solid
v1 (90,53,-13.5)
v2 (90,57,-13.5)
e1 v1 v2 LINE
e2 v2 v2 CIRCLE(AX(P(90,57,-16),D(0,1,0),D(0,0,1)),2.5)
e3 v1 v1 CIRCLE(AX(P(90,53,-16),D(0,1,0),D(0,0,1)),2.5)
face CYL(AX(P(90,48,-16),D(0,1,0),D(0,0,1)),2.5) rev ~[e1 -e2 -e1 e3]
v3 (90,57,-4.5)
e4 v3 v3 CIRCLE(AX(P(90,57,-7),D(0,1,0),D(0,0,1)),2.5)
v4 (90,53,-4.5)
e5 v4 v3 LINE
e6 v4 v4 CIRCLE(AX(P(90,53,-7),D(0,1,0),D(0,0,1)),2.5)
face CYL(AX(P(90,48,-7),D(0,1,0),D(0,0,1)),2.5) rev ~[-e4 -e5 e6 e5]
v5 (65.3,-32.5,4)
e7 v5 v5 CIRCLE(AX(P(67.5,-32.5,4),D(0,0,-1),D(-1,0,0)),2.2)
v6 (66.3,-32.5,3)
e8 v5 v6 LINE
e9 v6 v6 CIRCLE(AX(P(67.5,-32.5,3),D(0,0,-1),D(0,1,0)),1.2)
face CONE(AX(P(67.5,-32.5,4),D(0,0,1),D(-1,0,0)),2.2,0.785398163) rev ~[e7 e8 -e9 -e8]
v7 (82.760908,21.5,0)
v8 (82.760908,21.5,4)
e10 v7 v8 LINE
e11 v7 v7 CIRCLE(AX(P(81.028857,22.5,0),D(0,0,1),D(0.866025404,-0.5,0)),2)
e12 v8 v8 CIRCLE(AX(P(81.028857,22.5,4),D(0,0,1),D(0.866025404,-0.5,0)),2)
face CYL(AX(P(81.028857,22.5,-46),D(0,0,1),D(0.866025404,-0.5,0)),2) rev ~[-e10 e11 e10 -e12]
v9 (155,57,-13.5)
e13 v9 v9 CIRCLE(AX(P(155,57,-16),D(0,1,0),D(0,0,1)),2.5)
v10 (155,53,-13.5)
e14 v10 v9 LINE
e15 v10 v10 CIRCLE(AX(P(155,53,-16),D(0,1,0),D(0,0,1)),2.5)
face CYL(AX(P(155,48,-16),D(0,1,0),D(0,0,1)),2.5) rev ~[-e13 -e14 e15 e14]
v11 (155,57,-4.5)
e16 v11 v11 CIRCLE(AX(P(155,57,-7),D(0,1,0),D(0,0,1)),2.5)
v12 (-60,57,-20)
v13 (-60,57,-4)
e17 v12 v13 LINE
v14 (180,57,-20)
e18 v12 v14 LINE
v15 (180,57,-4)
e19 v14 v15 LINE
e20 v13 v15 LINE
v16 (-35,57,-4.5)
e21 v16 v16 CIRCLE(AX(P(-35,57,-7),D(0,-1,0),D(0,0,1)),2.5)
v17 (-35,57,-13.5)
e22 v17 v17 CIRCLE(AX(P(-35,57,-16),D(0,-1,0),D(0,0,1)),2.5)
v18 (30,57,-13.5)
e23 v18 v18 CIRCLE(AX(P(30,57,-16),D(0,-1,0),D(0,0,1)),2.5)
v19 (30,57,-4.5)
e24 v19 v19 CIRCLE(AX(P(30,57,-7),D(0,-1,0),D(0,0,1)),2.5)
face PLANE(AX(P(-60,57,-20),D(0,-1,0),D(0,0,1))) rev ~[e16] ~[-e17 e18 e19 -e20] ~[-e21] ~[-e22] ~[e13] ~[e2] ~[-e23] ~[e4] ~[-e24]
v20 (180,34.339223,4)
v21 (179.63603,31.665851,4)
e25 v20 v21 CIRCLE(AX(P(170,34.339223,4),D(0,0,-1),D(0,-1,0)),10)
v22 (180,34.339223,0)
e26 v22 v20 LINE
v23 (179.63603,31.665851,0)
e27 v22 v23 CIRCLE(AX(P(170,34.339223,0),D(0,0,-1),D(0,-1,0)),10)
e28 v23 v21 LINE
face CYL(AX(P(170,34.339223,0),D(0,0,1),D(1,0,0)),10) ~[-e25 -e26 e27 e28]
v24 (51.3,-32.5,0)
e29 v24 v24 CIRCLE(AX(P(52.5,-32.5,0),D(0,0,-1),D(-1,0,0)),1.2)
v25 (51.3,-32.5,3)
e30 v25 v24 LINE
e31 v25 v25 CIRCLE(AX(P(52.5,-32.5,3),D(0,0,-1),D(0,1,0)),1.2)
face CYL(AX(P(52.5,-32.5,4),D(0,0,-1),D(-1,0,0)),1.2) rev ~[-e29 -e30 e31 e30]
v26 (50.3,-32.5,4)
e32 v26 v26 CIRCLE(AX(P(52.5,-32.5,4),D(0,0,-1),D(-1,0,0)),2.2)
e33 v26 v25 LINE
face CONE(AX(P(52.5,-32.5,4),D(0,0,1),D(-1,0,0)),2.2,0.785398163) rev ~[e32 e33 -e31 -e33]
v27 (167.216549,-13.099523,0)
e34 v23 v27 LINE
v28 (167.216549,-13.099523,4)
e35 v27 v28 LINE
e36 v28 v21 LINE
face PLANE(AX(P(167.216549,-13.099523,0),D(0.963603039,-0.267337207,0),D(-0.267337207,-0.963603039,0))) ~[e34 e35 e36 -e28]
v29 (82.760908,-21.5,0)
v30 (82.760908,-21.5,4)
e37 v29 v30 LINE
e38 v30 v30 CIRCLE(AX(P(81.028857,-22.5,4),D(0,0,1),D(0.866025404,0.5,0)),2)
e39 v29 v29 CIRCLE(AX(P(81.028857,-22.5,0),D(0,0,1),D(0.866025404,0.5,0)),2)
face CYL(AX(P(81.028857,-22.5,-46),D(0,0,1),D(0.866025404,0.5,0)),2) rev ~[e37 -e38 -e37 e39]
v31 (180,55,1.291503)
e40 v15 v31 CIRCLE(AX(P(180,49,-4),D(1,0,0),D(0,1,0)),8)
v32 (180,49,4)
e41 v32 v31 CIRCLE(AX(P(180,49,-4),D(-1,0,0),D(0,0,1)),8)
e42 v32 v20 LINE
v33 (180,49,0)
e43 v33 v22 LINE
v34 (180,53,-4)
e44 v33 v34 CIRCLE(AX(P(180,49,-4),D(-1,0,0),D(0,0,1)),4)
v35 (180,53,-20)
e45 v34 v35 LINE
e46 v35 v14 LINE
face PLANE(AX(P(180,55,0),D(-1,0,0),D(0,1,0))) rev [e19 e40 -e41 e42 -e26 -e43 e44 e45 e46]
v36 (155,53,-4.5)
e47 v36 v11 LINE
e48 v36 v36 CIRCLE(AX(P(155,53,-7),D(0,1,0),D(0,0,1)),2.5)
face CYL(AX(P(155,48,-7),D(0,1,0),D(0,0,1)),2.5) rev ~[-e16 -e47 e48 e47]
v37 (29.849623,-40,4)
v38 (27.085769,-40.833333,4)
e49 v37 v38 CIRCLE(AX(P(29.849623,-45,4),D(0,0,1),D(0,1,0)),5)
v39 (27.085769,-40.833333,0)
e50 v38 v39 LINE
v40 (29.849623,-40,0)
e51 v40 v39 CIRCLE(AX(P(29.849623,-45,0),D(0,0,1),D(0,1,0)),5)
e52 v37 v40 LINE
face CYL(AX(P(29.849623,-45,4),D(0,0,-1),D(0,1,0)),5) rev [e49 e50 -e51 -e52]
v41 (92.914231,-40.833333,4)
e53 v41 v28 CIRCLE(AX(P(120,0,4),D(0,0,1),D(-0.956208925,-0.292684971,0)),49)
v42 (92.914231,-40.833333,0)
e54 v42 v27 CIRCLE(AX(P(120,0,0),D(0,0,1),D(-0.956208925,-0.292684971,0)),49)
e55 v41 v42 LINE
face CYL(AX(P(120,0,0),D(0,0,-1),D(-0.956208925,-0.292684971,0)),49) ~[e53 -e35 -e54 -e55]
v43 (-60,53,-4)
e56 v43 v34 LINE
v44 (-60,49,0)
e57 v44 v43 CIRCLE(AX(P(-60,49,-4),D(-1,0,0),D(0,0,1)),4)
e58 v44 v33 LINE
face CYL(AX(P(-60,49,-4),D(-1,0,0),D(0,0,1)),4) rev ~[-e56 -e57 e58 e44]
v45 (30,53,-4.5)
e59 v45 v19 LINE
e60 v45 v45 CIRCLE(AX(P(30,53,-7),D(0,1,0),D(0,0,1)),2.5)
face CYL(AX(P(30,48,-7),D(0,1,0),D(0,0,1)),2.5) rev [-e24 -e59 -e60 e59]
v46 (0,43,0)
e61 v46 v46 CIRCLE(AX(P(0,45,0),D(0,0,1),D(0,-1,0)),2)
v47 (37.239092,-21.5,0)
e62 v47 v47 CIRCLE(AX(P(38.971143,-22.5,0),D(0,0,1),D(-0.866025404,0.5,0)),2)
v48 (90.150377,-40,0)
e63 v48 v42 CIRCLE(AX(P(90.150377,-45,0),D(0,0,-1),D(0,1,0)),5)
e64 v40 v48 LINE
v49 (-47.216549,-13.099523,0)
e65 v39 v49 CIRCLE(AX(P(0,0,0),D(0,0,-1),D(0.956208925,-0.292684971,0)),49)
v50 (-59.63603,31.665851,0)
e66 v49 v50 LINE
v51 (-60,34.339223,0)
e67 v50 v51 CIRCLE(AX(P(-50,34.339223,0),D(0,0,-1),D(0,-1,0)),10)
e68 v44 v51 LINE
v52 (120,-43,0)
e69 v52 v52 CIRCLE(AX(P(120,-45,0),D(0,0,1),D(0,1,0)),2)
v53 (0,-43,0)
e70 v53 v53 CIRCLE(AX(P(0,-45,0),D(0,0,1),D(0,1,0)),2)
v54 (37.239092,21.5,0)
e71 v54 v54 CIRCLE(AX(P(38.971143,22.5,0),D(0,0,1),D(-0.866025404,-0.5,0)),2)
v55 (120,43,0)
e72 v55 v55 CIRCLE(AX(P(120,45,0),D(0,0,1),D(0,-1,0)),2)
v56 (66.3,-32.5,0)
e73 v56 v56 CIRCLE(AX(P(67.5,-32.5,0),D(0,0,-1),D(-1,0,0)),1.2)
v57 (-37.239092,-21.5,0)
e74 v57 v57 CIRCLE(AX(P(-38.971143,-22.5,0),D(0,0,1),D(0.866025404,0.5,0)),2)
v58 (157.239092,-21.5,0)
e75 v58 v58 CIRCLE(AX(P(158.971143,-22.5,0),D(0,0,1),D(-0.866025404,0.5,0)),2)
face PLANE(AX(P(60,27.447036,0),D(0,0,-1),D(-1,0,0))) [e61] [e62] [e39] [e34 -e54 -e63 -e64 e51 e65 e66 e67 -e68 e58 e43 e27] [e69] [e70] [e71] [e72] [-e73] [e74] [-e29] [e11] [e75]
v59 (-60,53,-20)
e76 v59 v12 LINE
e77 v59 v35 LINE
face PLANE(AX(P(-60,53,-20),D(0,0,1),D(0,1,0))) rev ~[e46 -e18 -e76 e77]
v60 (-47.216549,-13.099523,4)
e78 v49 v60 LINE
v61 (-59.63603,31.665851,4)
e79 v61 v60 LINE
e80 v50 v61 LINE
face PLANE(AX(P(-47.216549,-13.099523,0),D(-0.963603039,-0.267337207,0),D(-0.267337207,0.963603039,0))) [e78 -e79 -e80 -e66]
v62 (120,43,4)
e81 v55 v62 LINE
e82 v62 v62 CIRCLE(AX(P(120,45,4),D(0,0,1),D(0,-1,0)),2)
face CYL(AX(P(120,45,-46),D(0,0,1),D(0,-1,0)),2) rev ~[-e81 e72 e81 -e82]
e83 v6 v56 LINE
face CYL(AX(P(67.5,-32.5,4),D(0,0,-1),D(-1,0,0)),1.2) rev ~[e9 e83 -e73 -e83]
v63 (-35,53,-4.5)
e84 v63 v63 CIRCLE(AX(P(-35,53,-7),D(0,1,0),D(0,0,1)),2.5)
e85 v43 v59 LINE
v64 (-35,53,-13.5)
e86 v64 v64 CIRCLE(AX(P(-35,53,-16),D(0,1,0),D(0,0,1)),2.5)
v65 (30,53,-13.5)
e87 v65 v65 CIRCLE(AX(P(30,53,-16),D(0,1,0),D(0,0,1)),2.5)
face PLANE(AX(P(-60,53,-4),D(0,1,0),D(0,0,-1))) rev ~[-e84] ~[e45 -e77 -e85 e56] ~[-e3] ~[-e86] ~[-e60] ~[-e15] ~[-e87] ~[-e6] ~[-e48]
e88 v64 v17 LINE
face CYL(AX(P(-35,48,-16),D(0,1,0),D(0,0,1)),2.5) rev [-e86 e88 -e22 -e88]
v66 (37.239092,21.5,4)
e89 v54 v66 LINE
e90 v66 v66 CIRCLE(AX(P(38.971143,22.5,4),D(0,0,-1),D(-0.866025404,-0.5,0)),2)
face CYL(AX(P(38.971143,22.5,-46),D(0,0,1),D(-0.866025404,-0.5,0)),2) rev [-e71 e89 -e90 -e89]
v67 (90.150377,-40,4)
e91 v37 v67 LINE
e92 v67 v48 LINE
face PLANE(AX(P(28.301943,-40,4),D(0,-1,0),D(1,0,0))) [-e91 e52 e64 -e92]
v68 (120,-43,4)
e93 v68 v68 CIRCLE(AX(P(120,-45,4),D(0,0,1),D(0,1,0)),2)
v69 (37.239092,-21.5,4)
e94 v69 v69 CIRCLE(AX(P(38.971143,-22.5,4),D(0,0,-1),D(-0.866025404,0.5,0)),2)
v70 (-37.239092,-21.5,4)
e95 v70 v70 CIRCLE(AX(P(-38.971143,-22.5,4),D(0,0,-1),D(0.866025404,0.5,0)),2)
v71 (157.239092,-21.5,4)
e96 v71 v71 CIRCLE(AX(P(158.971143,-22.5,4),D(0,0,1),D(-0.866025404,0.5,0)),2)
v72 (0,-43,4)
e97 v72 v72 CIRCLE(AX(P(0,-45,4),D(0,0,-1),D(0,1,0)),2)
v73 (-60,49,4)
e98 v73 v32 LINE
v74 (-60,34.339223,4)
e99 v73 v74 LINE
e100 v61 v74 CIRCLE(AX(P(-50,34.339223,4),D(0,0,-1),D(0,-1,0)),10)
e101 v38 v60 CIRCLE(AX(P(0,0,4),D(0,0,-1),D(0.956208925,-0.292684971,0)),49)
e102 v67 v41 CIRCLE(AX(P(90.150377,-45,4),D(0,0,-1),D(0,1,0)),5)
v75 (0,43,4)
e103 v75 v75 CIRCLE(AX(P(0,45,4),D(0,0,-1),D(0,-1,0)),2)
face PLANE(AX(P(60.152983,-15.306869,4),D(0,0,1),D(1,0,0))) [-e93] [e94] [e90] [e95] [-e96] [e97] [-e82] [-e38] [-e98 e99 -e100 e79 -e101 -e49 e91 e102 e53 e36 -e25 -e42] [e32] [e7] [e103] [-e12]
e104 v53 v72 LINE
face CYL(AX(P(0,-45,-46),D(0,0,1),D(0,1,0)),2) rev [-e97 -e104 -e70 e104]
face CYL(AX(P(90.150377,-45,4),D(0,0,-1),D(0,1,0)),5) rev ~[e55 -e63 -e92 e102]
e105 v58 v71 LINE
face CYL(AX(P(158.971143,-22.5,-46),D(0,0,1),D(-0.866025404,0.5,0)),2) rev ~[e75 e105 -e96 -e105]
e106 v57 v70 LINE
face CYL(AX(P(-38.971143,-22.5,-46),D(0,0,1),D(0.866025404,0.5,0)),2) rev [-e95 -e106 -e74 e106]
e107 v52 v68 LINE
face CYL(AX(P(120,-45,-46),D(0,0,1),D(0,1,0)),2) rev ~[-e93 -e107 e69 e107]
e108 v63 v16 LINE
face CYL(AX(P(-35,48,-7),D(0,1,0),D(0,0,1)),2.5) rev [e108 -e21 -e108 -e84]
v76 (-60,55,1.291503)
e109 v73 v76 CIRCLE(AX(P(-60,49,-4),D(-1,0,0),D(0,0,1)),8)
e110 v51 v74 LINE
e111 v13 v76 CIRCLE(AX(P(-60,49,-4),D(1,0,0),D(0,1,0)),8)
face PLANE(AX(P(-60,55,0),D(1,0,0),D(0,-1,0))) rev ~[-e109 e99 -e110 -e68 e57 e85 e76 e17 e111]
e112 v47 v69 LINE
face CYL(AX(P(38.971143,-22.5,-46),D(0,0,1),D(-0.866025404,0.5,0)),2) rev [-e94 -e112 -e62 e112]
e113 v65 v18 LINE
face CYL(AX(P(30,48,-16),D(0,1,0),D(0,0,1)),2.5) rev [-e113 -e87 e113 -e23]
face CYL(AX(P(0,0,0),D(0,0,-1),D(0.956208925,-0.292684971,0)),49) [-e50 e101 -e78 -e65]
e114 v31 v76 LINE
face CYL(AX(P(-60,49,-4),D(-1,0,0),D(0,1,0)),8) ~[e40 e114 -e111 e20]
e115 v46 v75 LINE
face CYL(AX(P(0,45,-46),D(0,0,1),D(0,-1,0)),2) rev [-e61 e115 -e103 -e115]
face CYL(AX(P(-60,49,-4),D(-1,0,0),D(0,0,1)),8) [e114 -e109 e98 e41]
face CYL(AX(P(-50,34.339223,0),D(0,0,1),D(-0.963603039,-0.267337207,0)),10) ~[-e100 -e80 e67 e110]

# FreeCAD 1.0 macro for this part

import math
import FreeCAD as App
import Part
import Sketcher

V = App.Vector
Q = App.Units.Quantity


def edges_at(feature, points):
    """Names of the edges that pass closest to the given points."""
    edges = feature.Shape.Edges
    near = lambda p: min(range(len(edges)), key=lambda i: edges[i].distToShape(Part.Vertex(*p))[0])
    return sorted({f"Edge{near(p) + 1}" for p in points})

doc = App.newDocument("Part")
params = doc.addObject("Spreadsheet::Sheet", "Params")
for row, (alias, value) in enumerate([
    ("sketch1_radius", "49 mm"),
    ("sketch1_width", "130 mm"),
    ("sketch1_height", "4 mm"),
    ("pad1_length", "4 mm"),
    ("sketch2_radius", "8 mm"),
    ("sketch2_radius2", "4 mm"),
    ("sketch2_height", "16 mm"),
    ("pad2_length", "240 mm"),
    ("sketch3_width", "2 mm"),
    ("sketch3_height", "50 mm"),
    ("groove_angle", "360 deg"),
    ("sketch4_width", "2 mm"),
    ("sketch4_height", "50 mm"),
    ("groove2_angle", "360 deg"),
    ("sketch5_width", "2 mm"),
    ("sketch5_height", "50 mm"),
    ("groove3_angle", "360 deg"),
    ("sketch6_width", "2 mm"),
    ("sketch6_height", "50 mm"),
    ("groove4_angle", "360 deg"),
    ("sketch7_width", "2 mm"),
    ("sketch7_height", "50 mm"),
    ("groove5_angle", "360 deg"),
    ("pad3_length", "4 mm"),
    ("fillet_radius", "5 mm"),
    ("sketch9_diameter", "2.4 mm"),
    ("hole_diameter", "2.4 mm"),
    ("hole_depth", "9 mm"),
    ("hole_csink_diameter", "4.4 mm"),
    ("sketch10_width", "5 mm"),
    ("sketch10_height", "4 mm"),
    ("pocket1_length", "4 mm"),
    ("sketch11_radius", "8 mm"),
    ("sketch11_width", "6 mm"),
    ("pocket2_length", "240 mm"),
    ("sketch12_width", "9 mm"),
    ("sketch12_height", "2.5 mm"),
    ("groove6_angle", "360 deg"),
    ("linearpattern_pitch", "9 mm"),
    ("linearpattern2_pitch", "65 mm"),
    ("sketch13_width", "9 mm"),
    ("sketch13_height", "2.5 mm"),
    ("groove7_angle", "360 deg"),
    ("sketch14_width", "9 mm"),
    ("sketch14_height", "2.5 mm"),
    ("groove8_angle", "360 deg"),
    ("sketch15_width", "9 mm"),
    ("sketch15_height", "2.5 mm"),
    ("groove9_angle", "360 deg"),
    ("sketch16_width", "9 mm"),
    ("sketch16_height", "2.5 mm"),
    ("groove10_angle", "360 deg"),
    ("fillet2_radius", "10 mm"),
    ("pad4_length", "4 mm"),
], start=1):
    params.set(f"A{row}", alias)
    params.set(f"B{row}", "=" + value)
    params.setAlias(f"B{row}", alias)

body = doc.addObject("PartDesign::Body", "Body")

sketch1 = doc.addObject("Sketcher::SketchObject", "Sketch")
body.addObject(sketch1)
sketch1.AttachmentSupport = (doc.XY_Plane, [""])
sketch1.MapMode = "FlatFace"
sketch1.addGeometry(Part.LineSegment(V(65, 55, 0), V(-65, 55, 0)), False)
sketch1.addGeometry(Part.LineSegment(V(-65, 55, 0), V(-65, 51, 0)), False)
sketch1.addGeometry(Part.LineSegment(V(-65, 51, 0), V(-47.2, -13.1, 0)), False)
sketch1.addGeometry(Part.ArcOfCircle(Part.Circle(V(0, 0, 0), V(0, 0, 1), 49), math.radians(-164), math.radians(-17)), False)
sketch1.addGeometry(Part.LineSegment(V(46.9, -14.3, 0), V(65, 55, 0)), False)
sketch1.addConstraint(Sketcher.Constraint("Coincident", 0, 2, 1, 1))
sketch1.addConstraint(Sketcher.Constraint("Coincident", 1, 2, 2, 1))
sketch1.addConstraint(Sketcher.Constraint("Tangent", 2, 2, 3, 1))
sketch1.addConstraint(Sketcher.Constraint("Coincident", 3, 2, 4, 1))
sketch1.addConstraint(Sketcher.Constraint("Coincident", 4, 2, 0, 1))
sketch1.addConstraint(Sketcher.Constraint("Horizontal", 0))
sketch1.addConstraint(Sketcher.Constraint("Vertical", 1))
sketch1.addConstraint(Sketcher.Constraint("Coincident", 3, 3, -1, 1))
sketch1.addConstraint(Sketcher.Constraint("Radius", 3, 49.0))
sketch1.addConstraint(Sketcher.Constraint("DistanceX", 0, 2, 0, 1, 130.0))
sketch1.addConstraint(Sketcher.Constraint("DistanceY", 1, 2, 1, 1, 4.0))
sketch1.addConstraint(Sketcher.Constraint("DistanceX", 0, 2, -1, 1, 65.0))
sketch1.addConstraint(Sketcher.Constraint("DistanceY", -1, 1, 0, 2, 55.0))
sketch1.addConstraint(Sketcher.Constraint("DistanceY", 3, 2, 2, 2, 1.24204))
sketch1.setExpression("Constraints[8]", "Params.sketch1_radius")
sketch1.setExpression("Constraints[9]", "Params.sketch1_width")
sketch1.setExpression("Constraints[10]", "Params.sketch1_height")
pad1 = doc.addObject("PartDesign::Pad", "Pad")
body.addObject(pad1)
pad1.Profile = sketch1
pad1.setExpression("Length", "Params.pad1_length")

sketch2 = doc.addObject("Sketcher::SketchObject", "Sketch001")
body.addObject(sketch2)
sketch2.AttachmentSupport = (doc.YZ_Plane, [""])
sketch2.MapMode = "FlatFace"
sketch2.AttachmentOffset = App.Placement(V(0, 0, -60), App.Rotation())
sketch2.addGeometry(Part.LineSegment(V(53, -20, 0), V(57, -20, 0)), False)
sketch2.addGeometry(Part.LineSegment(V(57, -20, 0), V(57, -4, 0)), False)
sketch2.addGeometry(Part.ArcOfCircle(Part.Circle(V(49, -4, 0), V(0, 0, 1), 8), math.radians(0), math.radians(90)), False)
sketch2.addGeometry(Part.LineSegment(V(49, 4, 0), V(33, 4, 0)), False)
sketch2.addGeometry(Part.LineSegment(V(33, 4, 0), V(33, 0, 0)), False)
sketch2.addGeometry(Part.LineSegment(V(33, 0, 0), V(49, 0, 0)), False)
sketch2.addGeometry(Part.ArcOfCircle(Part.Circle(V(49, -4, 0), V(0, 0, 1), 4), math.radians(0), math.radians(90)), False)
sketch2.addGeometry(Part.LineSegment(V(53, -4, 0), V(53, -20, 0)), False)
sketch2.addConstraint(Sketcher.Constraint("Coincident", 0, 2, 1, 1))
sketch2.addConstraint(Sketcher.Constraint("Tangent", 1, 2, 2, 1))
sketch2.addConstraint(Sketcher.Constraint("Tangent", 2, 2, 3, 1))
sketch2.addConstraint(Sketcher.Constraint("Coincident", 3, 2, 4, 1))
sketch2.addConstraint(Sketcher.Constraint("Coincident", 4, 2, 5, 1))
sketch2.addConstraint(Sketcher.Constraint("Tangent", 5, 2, 6, 2))
sketch2.addConstraint(Sketcher.Constraint("Tangent", 6, 1, 7, 1))
sketch2.addConstraint(Sketcher.Constraint("Coincident", 7, 2, 0, 1))
sketch2.addConstraint(Sketcher.Constraint("Horizontal", 0))
sketch2.addConstraint(Sketcher.Constraint("Vertical", 1))
sketch2.addConstraint(Sketcher.Constraint("Horizontal", 3))
sketch2.addConstraint(Sketcher.Constraint("Vertical", 4))
sketch2.addConstraint(Sketcher.Constraint("Horizontal", 5))
sketch2.addConstraint(Sketcher.Constraint("Vertical", 7))
sketch2.addConstraint(Sketcher.Constraint("Coincident", 6, 3, 2, 3))
sketch2.addConstraint(Sketcher.Constraint("PointOnObject", 4, 2, -1))
sketch2.addConstraint(Sketcher.Constraint("Radius", 2, 8.0))
sketch2.addConstraint(Sketcher.Constraint("Radius", 6, 4.0))
sketch2.addConstraint(Sketcher.Constraint("DistanceY", 1, 1, 1, 2, 16.0))
sketch2.addConstraint(Sketcher.Constraint("DistanceX", -1, 1, 2, 3, 49.0))
sketch2.addConstraint(Sketcher.Constraint("DistanceX", 3, 2, 3, 1, 16.02224))
sketch2.setExpression("Constraints[16]", "Params.sketch2_radius")
sketch2.setExpression("Constraints[17]", "Params.sketch2_radius2")
sketch2.setExpression("Constraints[18]", "Params.sketch2_height")
pad2 = doc.addObject("PartDesign::Pad", "Pad001")
body.addObject(pad2)
pad2.Profile = sketch2
pad2.setExpression("Length", "Params.pad2_length")
doc.recompute()

datumplane = doc.addObject("PartDesign::Plane", "DatumPlane")
body.addObject(datumplane)
datumplane.AttachmentSupport = (doc.YZ_Plane, [""])
datumplane.MapMode = "FlatFace"
datumplane.AttachmentOffset = App.Placement(V(0, 0, 60), App.Rotation())
mirrored = doc.addObject("PartDesign::Mirrored", "Mirrored")
body.addObject(mirrored)
mirrored.Originals = [pad1]
mirrored.MirrorPlane = (datumplane, [""])
body.Tip = mirrored

sketch3 = doc.addObject("Sketcher::SketchObject", "Sketch002")
body.addObject(sketch3)
sketch3.AttachmentSupport = (doc.YZ_Plane, [""])
sketch3.MapMode = "FlatFace"
sketch3.addGeometry(Part.LineSegment(V(45, -47.2, 0), V(45, 4, 0)), False)
sketch3.addGeometry(Part.LineSegment(V(45, 4, 0), V(43, 4, 0)), False)
sketch3.addGeometry(Part.LineSegment(V(43, 4, 0), V(43, -46, 0)), False)
sketch3.addGeometry(Part.LineSegment(V(43, -46, 0), V(45, -47.2, 0)), False)
sketch3.addGeometry(Part.LineSegment(V(45, 4, 0), V(45, -47.2, 0)), True)
sketch3.addConstraint(Sketcher.Constraint("Coincident", 0, 2, 1, 1))
sketch3.addConstraint(Sketcher.Constraint("Coincident", 1, 2, 2, 1))
sketch3.addConstraint(Sketcher.Constraint("Coincident", 2, 2, 3, 1))
sketch3.addConstraint(Sketcher.Constraint("Coincident", 3, 2, 0, 1))
sketch3.addConstraint(Sketcher.Constraint("Vertical", 0))
sketch3.addConstraint(Sketcher.Constraint("Horizontal", 1))
sketch3.addConstraint(Sketcher.Constraint("Vertical", 2))
sketch3.addConstraint(Sketcher.Constraint("Vertical", 4))
sketch3.addConstraint(Sketcher.Constraint("Coincident", 4, 1, 0, 2))
sketch3.addConstraint(Sketcher.Constraint("Equal", 0, 4))
sketch3.addConstraint(Sketcher.Constraint("DistanceX", 1, 2, 1, 1, 2.0))
sketch3.addConstraint(Sketcher.Constraint("DistanceY", 2, 2, 2, 1, 50.0))
sketch3.addConstraint(Sketcher.Constraint("Angle", 3, Q("-31 deg")))
sketch3.addConstraint(Sketcher.Constraint("DistanceX", -1, 1, 0, 2, 45.0))
sketch3.addConstraint(Sketcher.Constraint("DistanceY", -1, 1, 0, 2, 4.0))
sketch3.setExpression("Constraints[10]", "Params.sketch3_width")
sketch3.setExpression("Constraints[11]", "Params.sketch3_height")
groove = doc.addObject("PartDesign::Groove", "Groove")
body.addObject(groove)
groove.Profile = sketch3
groove.ReferenceAxis = (sketch3, ["Axis0"])
groove.setExpression("Angle", "Params.groove_angle")
doc.recompute()

polarpattern = doc.addObject("PartDesign::PolarPattern", "PolarPattern")
body.addObject(polarpattern)
polarpattern.Originals = [groove]
polarpattern.Axis = (doc.Z_Axis, [""])
polarpattern.Angle = 240
polarpattern.Occurrences = 5
polarpattern.Reversed = True
body.Tip = polarpattern
doc.recompute()

datumplane2 = doc.addObject("PartDesign::Plane", "DatumPlane001")
body.addObject(datumplane2)
datumplane2.AttachmentSupport = (doc.YZ_Plane, [""])
datumplane2.MapMode = "FlatFace"
datumplane2.AttachmentOffset = App.Placement(V(0, 0, 60), App.Rotation())
mirrored2 = doc.addObject("PartDesign::Mirrored", "Mirrored001")
body.addObject(mirrored2)
mirrored2.Originals = [groove]
mirrored2.MirrorPlane = (datumplane2, [""])
body.Tip = mirrored2

sketch4 = doc.addObject("Sketcher::SketchObject", "Sketch003")
body.addObject(sketch4)
sketch4.Placement = App.Placement(V(81.028857, 22.5, 4), App.Rotation(V(0.866025404, -0.5, 0), V(0, 0, 1), V(-0.5, -0.866025404, 0), "ZXY"))
sketch4.addGeometry(Part.LineSegment(V(0, 0, 0), V(0, -51.2, 0)), False)
sketch4.addGeometry(Part.LineSegment(V(0, -51.2, 0), V(2, -50, 0)), False)
sketch4.addGeometry(Part.LineSegment(V(2, -50, 0), V(2, 0, 0)), False)
sketch4.addGeometry(Part.LineSegment(V(2, 0, 0), V(0, 0, 0)), False)
sketch4.addConstraint(Sketcher.Constraint("Coincident", 0, 2, 1, 1))
sketch4.addConstraint(Sketcher.Constraint("Coincident", 1, 2, 2, 1))
sketch4.addConstraint(Sketcher.Constraint("Coincident", 2, 2, 3, 1))
sketch4.addConstraint(Sketcher.Constraint("Coincident", 3, 2, 0, 1))
sketch4.addConstraint(Sketcher.Constraint("Vertical", 0))
sketch4.addConstraint(Sketcher.Constraint("Vertical", 2))
sketch4.addConstraint(Sketcher.Constraint("Horizontal", 3))
sketch4.addConstraint(Sketcher.Constraint("Coincident", 3, 2, -1, 1))
sketch4.addConstraint(Sketcher.Constraint("DistanceX", 3, 2, 3, 1, 2.0))
sketch4.addConstraint(Sketcher.Constraint("DistanceY", 2, 1, 2, 2, 50.0))
sketch4.addConstraint(Sketcher.Constraint("Angle", 1, Q("31 deg")))
sketch4.setExpression("Constraints[8]", "Params.sketch4_width")
sketch4.setExpression("Constraints[9]", "Params.sketch4_height")
groove2 = doc.addObject("PartDesign::Groove", "Groove001")
body.addObject(groove2)
groove2.Profile = sketch4
groove2.ReferenceAxis = (sketch4, ["V_Axis"])
groove2.setExpression("Angle", "Params.groove2_angle")

sketch5 = doc.addObject("Sketcher::SketchObject", "Sketch004")
body.addObject(sketch5)
sketch5.Placement = App.Placement(V(81.028857, -22.5, 4), App.Rotation(V(0.866025404, 0.5, 0), V(0, 0, 1), V(0.5, -0.866025404, 0), "ZXY"))
sketch5.addGeometry(Part.LineSegment(V(0, 0, 0), V(0, -51.2, 0)), False)
sketch5.addGeometry(Part.LineSegment(V(0, -51.2, 0), V(2, -50, 0)), False)
sketch5.addGeometry(Part.LineSegment(V(2, -50, 0), V(2, 0, 0)), False)
sketch5.addGeometry(Part.LineSegment(V(2, 0, 0), V(0, 0, 0)), False)
sketch5.addConstraint(Sketcher.Constraint("Coincident", 0, 2, 1, 1))
sketch5.addConstraint(Sketcher.Constraint("Coincident", 1, 2, 2, 1))
sketch5.addConstraint(Sketcher.Constraint("Coincident", 2, 2, 3, 1))
sketch5.addConstraint(Sketcher.Constraint("Coincident", 3, 2, 0, 1))
sketch5.addConstraint(Sketcher.Constraint("Vertical", 0))
sketch5.addConstraint(Sketcher.Constraint("Vertical", 2))
sketch5.addConstraint(Sketcher.Constraint("Horizontal", 3))
sketch5.addConstraint(Sketcher.Constraint("Coincident", 3, 2, -1, 1))
sketch5.addConstraint(Sketcher.Constraint("DistanceX", 3, 2, 3, 1, 2.0))
sketch5.addConstraint(Sketcher.Constraint("DistanceY", 2, 1, 2, 2, 50.0))
sketch5.addConstraint(Sketcher.Constraint("Angle", 1, Q("31 deg")))
sketch5.setExpression("Constraints[8]", "Params.sketch5_width")
sketch5.setExpression("Constraints[9]", "Params.sketch5_height")
groove3 = doc.addObject("PartDesign::Groove", "Groove002")
body.addObject(groove3)
groove3.Profile = sketch5
groove3.ReferenceAxis = (sketch5, ["V_Axis"])
groove3.setExpression("Angle", "Params.groove3_angle")

sketch6 = doc.addObject("Sketcher::SketchObject", "Sketch005")
body.addObject(sketch6)
sketch6.AttachmentSupport = (doc.YZ_Plane, [""])
sketch6.MapMode = "FlatFace"
sketch6.AttachmentOffset = App.Placement(V(0, 0, 120), App.Rotation())
sketch6.addGeometry(Part.LineSegment(V(-45, 4, 0), V(-45, -47.2, 0)), False)
sketch6.addGeometry(Part.LineSegment(V(-45, -47.2, 0), V(-43, -46, 0)), False)
sketch6.addGeometry(Part.LineSegment(V(-43, -46, 0), V(-43, 4, 0)), False)
sketch6.addGeometry(Part.LineSegment(V(-43, 4, 0), V(-45, 4, 0)), False)
sketch6.addGeometry(Part.LineSegment(V(-45, -47.2, 0), V(-45, 4, 0)), True)
sketch6.addConstraint(Sketcher.Constraint("Coincident", 0, 2, 1, 1))
sketch6.addConstraint(Sketcher.Constraint("Coincident", 1, 2, 2, 1))
sketch6.addConstraint(Sketcher.Constraint("Coincident", 2, 2, 3, 1))
sketch6.addConstraint(Sketcher.Constraint("Coincident", 3, 2, 0, 1))
sketch6.addConstraint(Sketcher.Constraint("Vertical", 0))
sketch6.addConstraint(Sketcher.Constraint("Vertical", 2))
sketch6.addConstraint(Sketcher.Constraint("Horizontal", 3))
sketch6.addConstraint(Sketcher.Constraint("Vertical", 4))
sketch6.addConstraint(Sketcher.Constraint("Coincident", 4, 1, 0, 2))
sketch6.addConstraint(Sketcher.Constraint("Horizontal", 2, 2, 4, 2))
sketch6.addConstraint(Sketcher.Constraint("DistanceX", 3, 2, 3, 1, 2.0))
sketch6.addConstraint(Sketcher.Constraint("DistanceY", 2, 1, 2, 2, 50.0))
sketch6.addConstraint(Sketcher.Constraint("Angle", 1, Q("31 deg")))
sketch6.addConstraint(Sketcher.Constraint("DistanceX", 0, 2, -1, 1, 45.0))
sketch6.addConstraint(Sketcher.Constraint("DistanceY", 1, 2, -1, 1, 46.0))
sketch6.setExpression("Constraints[10]", "Params.sketch6_width")
sketch6.setExpression("Constraints[11]", "Params.sketch6_height")
groove4 = doc.addObject("PartDesign::Groove", "Groove003")
body.addObject(groove4)
groove4.Profile = sketch6
groove4.ReferenceAxis = (sketch6, ["Axis0"])
groove4.setExpression("Angle", "Params.groove4_angle")

sketch7 = doc.addObject("Sketcher::SketchObject", "Sketch006")
body.addObject(sketch7)
sketch7.Placement = App.Placement(V(158.971143, -22.5, 4), App.Rotation(V(-0.866025404, 0.5, 0), V(0, 0, 1), V(0.5, 0.866025404, 0), "ZXY"))
sketch7.addGeometry(Part.LineSegment(V(0, 0, 0), V(0, -51.2, 0)), False)
sketch7.addGeometry(Part.LineSegment(V(0, -51.2, 0), V(2, -50, 0)), False)
sketch7.addGeometry(Part.LineSegment(V(2, -50, 0), V(2, 0, 0)), False)
sketch7.addGeometry(Part.LineSegment(V(2, 0, 0), V(0, 0, 0)), False)
sketch7.addConstraint(Sketcher.Constraint("Coincident", 0, 2, 1, 1))
sketch7.addConstraint(Sketcher.Constraint("Coincident", 1, 2, 2, 1))
sketch7.addConstraint(Sketcher.Constraint("Coincident", 2, 2, 3, 1))
sketch7.addConstraint(Sketcher.Constraint("Coincident", 3, 2, 0, 1))
sketch7.addConstraint(Sketcher.Constraint("Vertical", 0))
sketch7.addConstraint(Sketcher.Constraint("Vertical", 2))
sketch7.addConstraint(Sketcher.Constraint("Horizontal", 3))
sketch7.addConstraint(Sketcher.Constraint("Coincident", 3, 2, -1, 1))
sketch7.addConstraint(Sketcher.Constraint("DistanceX", 3, 2, 3, 1, 2.0))
sketch7.addConstraint(Sketcher.Constraint("DistanceY", 2, 1, 2, 2, 50.0))
sketch7.addConstraint(Sketcher.Constraint("Angle", 1, Q("31 deg")))
sketch7.setExpression("Constraints[8]", "Params.sketch7_width")
sketch7.setExpression("Constraints[9]", "Params.sketch7_height")
groove5 = doc.addObject("PartDesign::Groove", "Groove004")
body.addObject(groove5)
groove5.Profile = sketch7
groove5.ReferenceAxis = (sketch7, ["V_Axis"])
groove5.setExpression("Angle", "Params.groove5_angle")

sketch8 = doc.addObject("Sketcher::SketchObject", "Sketch007")
body.addObject(sketch8)
sketch8.AttachmentSupport = (doc.XY_Plane, [""])
sketch8.MapMode = "FlatFace"
sketch8.AttachmentOffset = App.Placement(V(0, 0, 4), App.Rotation())
sketch8.addGeometry(Part.LineSegment(V(28, -40, 0), V(92, -40, 0)), False)
sketch8.addGeometry(Part.LineSegment(V(92, -40, 0), V(78, -25, 0)), False)
sketch8.addGeometry(Part.LineSegment(V(78, -25, 0), V(71, 24, 0)), False)
sketch8.addGeometry(Part.LineSegment(V(71, 24, 0), V(50, 24, 0)), False)
sketch8.addGeometry(Part.LineSegment(V(50, 24, 0), V(43, -24, 0)), False)
sketch8.addGeometry(Part.LineSegment(V(43, -24, 0), V(28, -40, 0)), False)
sketch8.addConstraint(Sketcher.Constraint("Coincident", 0, 2, 1, 1))
sketch8.addConstraint(Sketcher.Constraint("Coincident", 1, 2, 2, 1))
sketch8.addConstraint(Sketcher.Constraint("Coincident", 2, 2, 3, 1))
sketch8.addConstraint(Sketcher.Constraint("Coincident", 3, 2, 4, 1))
sketch8.addConstraint(Sketcher.Constraint("Coincident", 4, 2, 5, 1))
sketch8.addConstraint(Sketcher.Constraint("Coincident", 5, 2, 0, 1))
sketch8.addConstraint(Sketcher.Constraint("Horizontal", 0))
sketch8.addConstraint(Sketcher.Constraint("Horizontal", 3))
sketch8.addConstraint(Sketcher.Constraint("DistanceY", 0, 2, -1, 1, 40.0))
sketch8.addConstraint(Sketcher.Constraint("DistanceX", 4, 2, 0, 2, 48.887901))
sketch8.addConstraint(Sketcher.Constraint("Distance", 1, 20.618109))
sketch8.addConstraint(Sketcher.Constraint("Distance", 2, 48.869159))
sketch8.addConstraint(Sketcher.Constraint("Distance", 4, 47.937881))
sketch8.addConstraint(Sketcher.Constraint("Distance", 5, 21.717992))
sketch8.addConstraint(Sketcher.Constraint("DistanceX", 0, 1, 0, 2, 63.396113))
sketch8.addConstraint(Sketcher.Constraint("DistanceX", 3, 2, 3, 1, 21.397653))
sketch8.addConstraint(Sketcher.Constraint("DistanceX", -1, 1, 1, 2, 77.749149))
sketch8.addConstraint(Sketcher.Constraint("DistanceY", 1, 2, -1, 1, 24.81664))
pad3 = doc.addObject("PartDesign::Pad", "Pad002")
body.addObject(pad3)
pad3.Profile = sketch8
pad3.setExpression("Length", "Params.pad3_length")
pad3.Reversed = True
doc.recompute()

fillet = doc.addObject("PartDesign::Fillet", "Fillet")
body.addObject(fillet)
fillet.Base = (pad3, edges_at(pad3, [(28.302, -40, 2), (91.698, -40, 2)]))
fillet.setExpression("Radius", "Params.fillet_radius")

sketch9 = doc.addObject("Sketcher::SketchObject", "Sketch008")
body.addObject(sketch9)
sketch9.AttachmentSupport = (doc.XY_Plane, [""])
sketch9.MapMode = "FlatFace"
sketch9.AttachmentOffset = App.Placement(V(0, 0, 4), App.Rotation())
sketch9.addGeometry(Part.Circle(V(52.5, -32.5, 0), V(0, 0, 1), 1.2), False)
sketch9.addGeometry(Part.Circle(V(67.5, -32.5, 0), V(0, 0, 1), 1.2), False)
sketch9.addConstraint(Sketcher.Constraint("Equal", 0, 1))
sketch9.addConstraint(Sketcher.Constraint("Horizontal", 0, 3, 1, 3))
sketch9.addConstraint(Sketcher.Constraint("Diameter", 0, 2.4))
sketch9.addConstraint(Sketcher.Constraint("DistanceX", 0, 3, 1, 3, 15.0))
sketch9.addConstraint(Sketcher.Constraint("DistanceX", -1, 1, 0, 3, 52.5))
sketch9.addConstraint(Sketcher.Constraint("DistanceY", 0, 3, -1, 1, 32.5))
sketch9.setExpression("Constraints[2]", "Params.sketch9_diameter")
doc.recompute()
hole = doc.addObject("PartDesign::Hole", "Hole")
body.addObject(hole)
hole.Profile = sketch9
hole.ThreadType = "None"
hole.setExpression("Diameter", "Params.hole_diameter")
hole.DepthType = "Dimension"
hole.setExpression("Depth", "Params.hole_depth")
hole.DrillPoint = "Angled"
hole.DrillPointAngle = 118
hole.HoleCutType = "Countersink"
hole.setExpression("HoleCutDiameter", "Params.hole_csink_diameter")
hole.HoleCutCountersinkAngle = 90

sketch10 = doc.addObject("Sketcher::SketchObject", "Sketch009")
body.addObject(sketch10)
sketch10.AttachmentSupport = (doc.XY_Plane, [""])
sketch10.MapMode = "FlatFace"
sketch10.addGeometry(Part.LineSegment(V(-60, 55, 0), V(-60, 33, 0)), False)
sketch10.addGeometry(Part.LineSegment(V(-60, 33, 0), V(-65, 51, 0)), False)
sketch10.addGeometry(Part.LineSegment(V(-65, 51, 0), V(-65, 55, 0)), False)
sketch10.addGeometry(Part.LineSegment(V(-65, 55, 0), V(-60, 55, 0)), False)
sketch10.addConstraint(Sketcher.Constraint("Coincident", 0, 2, 1, 1))
sketch10.addConstraint(Sketcher.Constraint("Coincident", 1, 2, 2, 1))
sketch10.addConstraint(Sketcher.Constraint("Coincident", 2, 2, 3, 1))
sketch10.addConstraint(Sketcher.Constraint("Coincident", 3, 2, 0, 1))
sketch10.addConstraint(Sketcher.Constraint("Vertical", 0))
sketch10.addConstraint(Sketcher.Constraint("Vertical", 2))
sketch10.addConstraint(Sketcher.Constraint("Horizontal", 3))
sketch10.addConstraint(Sketcher.Constraint("DistanceX", 3, 1, 3, 2, 5.0))
sketch10.addConstraint(Sketcher.Constraint("DistanceY", 2, 1, 2, 2, 4.0))
sketch10.addConstraint(Sketcher.Constraint("DistanceX", 0, 2, -1, 1, 60.0))
sketch10.addConstraint(Sketcher.Constraint("DistanceY", -1, 1, 1, 2, 51.0))
sketch10.addConstraint(Sketcher.Constraint("DistanceY", 0, 2, 0, 1, 22.02224))
sketch10.setExpression("Constraints[7]", "Params.sketch10_width")
sketch10.setExpression("Constraints[8]", "Params.sketch10_height")
pocket1 = doc.addObject("PartDesign::Pocket", "Pocket")
body.addObject(pocket1)
pocket1.Profile = sketch10
pocket1.setExpression("Length", "Params.pocket1_length")
pocket1.Reversed = True
doc.recompute()

datumplane3 = doc.addObject("PartDesign::Plane", "DatumPlane002")
body.addObject(datumplane3)
datumplane3.AttachmentSupport = (doc.YZ_Plane, [""])
datumplane3.MapMode = "FlatFace"
datumplane3.AttachmentOffset = App.Placement(V(0, 0, 60), App.Rotation())
mirrored3 = doc.addObject("PartDesign::Mirrored", "Mirrored002")
body.addObject(mirrored3)
mirrored3.Originals = [pocket1]
mirrored3.MirrorPlane = (datumplane3, [""])
body.Tip = mirrored3

sketch11 = doc.addObject("Sketcher::SketchObject", "Sketch010")
body.addObject(sketch11)
sketch11.AttachmentSupport = (doc.YZ_Plane, [""])
sketch11.MapMode = "FlatFace"
sketch11.AttachmentOffset = App.Placement(V(0, 0, -60), App.Rotation())
sketch11.addGeometry(Part.LineSegment(V(55, 4, 0), V(55, 1.3, 0)), False)
sketch11.addGeometry(Part.ArcOfCircle(Part.Circle(V(49, -4, 0), V(0, 0, 1), 8), math.radians(41), math.radians(90)), False)
sketch11.addGeometry(Part.LineSegment(V(49, 4, 0), V(55, 4, 0)), False)
sketch11.addConstraint(Sketcher.Constraint("Coincident", 0, 2, 1, 1))
sketch11.addConstraint(Sketcher.Constraint("Tangent", 1, 2, 2, 1))
sketch11.addConstraint(Sketcher.Constraint("Coincident", 2, 2, 0, 1))
sketch11.addConstraint(Sketcher.Constraint("Vertical", 0))
sketch11.addConstraint(Sketcher.Constraint("Horizontal", 2))
sketch11.addConstraint(Sketcher.Constraint("Radius", 1, 8.0))
sketch11.addConstraint(Sketcher.Constraint("DistanceX", 2, 1, 2, 2, 6.0))
sketch11.addConstraint(Sketcher.Constraint("DistanceX", -1, 1, 1, 3, 49.0))
sketch11.addConstraint(Sketcher.Constraint("DistanceY", 1, 3, -1, 1, 4.0))
sketch11.setExpression("Constraints[5]", "Params.sketch11_radius")
sketch11.setExpression("Constraints[6]", "Params.sketch11_width")
pocket2 = doc.addObject("PartDesign::Pocket", "Pocket001")
body.addObject(pocket2)
pocket2.Profile = sketch11
pocket2.setExpression("Length", "Params.pocket2_length")
pocket2.Reversed = True

sketch12 = doc.addObject("Sketcher::SketchObject", "Sketch011")
body.addObject(sketch12)
sketch12.AttachmentSupport = (doc.YZ_Plane, [""])
sketch12.MapMode = "FlatFace"
sketch12.AttachmentOffset = App.Placement(V(0, 0, -35), App.Rotation())
sketch12.addGeometry(Part.LineSegment(V(46.5, -7, 0), V(57, -7, 0)), False)
sketch12.addGeometry(Part.LineSegment(V(57, -7, 0), V(57, -4.5, 0)), False)
sketch12.addGeometry(Part.LineSegment(V(57, -4.5, 0), V(48, -4.5, 0)), False)
sketch12.addGeometry(Part.LineSegment(V(48, -4.5, 0), V(46.5, -7, 0)), False)
sketch12.addGeometry(Part.LineSegment(V(57, -7, 0), V(46.5, -7, 0)), True)
sketch12.addConstraint(Sketcher.Constraint("Coincident", 0, 2, 1, 1))
sketch12.addConstraint(Sketcher.Constraint("Coincident", 1, 2, 2, 1))
sketch12.addConstraint(Sketcher.Constraint("Coincident", 2, 2, 3, 1))
sketch12.addConstraint(Sketcher.Constraint("Coincident", 3, 2, 0, 1))
sketch12.addConstraint(Sketcher.Constraint("Horizontal", 0))
sketch12.addConstraint(Sketcher.Constraint("Vertical", 1))
sketch12.addConstraint(Sketcher.Constraint("Horizontal", 2))
sketch12.addConstraint(Sketcher.Constraint("Horizontal", 4))
sketch12.addConstraint(Sketcher.Constraint("Coincident", 4, 1, 0, 2))
sketch12.addConstraint(Sketcher.Constraint("Equal", 0, 4))
sketch12.addConstraint(Sketcher.Constraint("DistanceX", 2, 2, 2, 1, 9.0))
sketch12.addConstraint(Sketcher.Constraint("Angle", 3, Q("-121 deg")))
sketch12.addConstraint(Sketcher.Constraint("DistanceY", 1, 1, 1, 2, 2.5))
sketch12.addConstraint(Sketcher.Constraint("DistanceX", -1, 1, 0, 2, 57.0))
sketch12.addConstraint(Sketcher.Constraint("DistanceY", 0, 2, -1, 1, 7.0))
sketch12.setExpression("Constraints[10]", "Params.sketch12_width")
sketch12.setExpression("Constraints[12]", "Params.sketch12_height")
groove6 = doc.addObject("PartDesign::Groove", "Groove005")
body.addObject(groove6)
groove6.Profile = sketch12
groove6.ReferenceAxis = (sketch12, ["Axis0"])
groove6.setExpression("Angle", "Params.groove6_angle")
doc.recompute()

linearpattern = doc.addObject("PartDesign::LinearPattern", "LinearPattern")
body.addObject(linearpattern)
linearpattern.Originals = [groove6]
linearpattern.Direction = (doc.Z_Axis, [""])
linearpattern.Mode = "offset"
linearpattern.setExpression("Offset", "Params.linearpattern_pitch")
linearpattern.Occurrences = 2
linearpattern.Reversed = True
body.Tip = linearpattern
doc.recompute()

linearpattern2 = doc.addObject("PartDesign::LinearPattern", "LinearPattern001")
body.addObject(linearpattern2)
linearpattern2.Originals = [groove6]
linearpattern2.Direction = (doc.X_Axis, [""])
linearpattern2.Mode = "offset"
linearpattern2.setExpression("Offset", "Params.linearpattern2_pitch")
linearpattern2.Occurrences = 2
body.Tip = linearpattern2

sketch13 = doc.addObject("Sketcher::SketchObject", "Sketch012")
body.addObject(sketch13)
sketch13.AttachmentSupport = (doc.YZ_Plane, [""])
sketch13.MapMode = "FlatFace"
sketch13.AttachmentOffset = App.Placement(V(0, 0, 30), App.Rotation())
sketch13.addGeometry(Part.LineSegment(V(46.5, -16, 0), V(57, -16, 0)), False)
sketch13.addGeometry(Part.LineSegment(V(57, -16, 0), V(57, -13.5, 0)), False)
sketch13.addGeometry(Part.LineSegment(V(57, -13.5, 0), V(48, -13.5, 0)), False)
sketch13.addGeometry(Part.LineSegment(V(48, -13.5, 0), V(46.5, -16, 0)), False)
sketch13.addGeometry(Part.LineSegment(V(57, -16, 0), V(46.5, -16, 0)), True)
sketch13.addConstraint(Sketcher.Constraint("Coincident", 0, 2, 1, 1))
sketch13.addConstraint(Sketcher.Constraint("Coincident", 1, 2, 2, 1))
sketch13.addConstraint(Sketcher.Constraint("Coincident", 2, 2, 3, 1))
sketch13.addConstraint(Sketcher.Constraint("Coincident", 3, 2, 0, 1))
sketch13.addConstraint(Sketcher.Constraint("Horizontal", 0))
sketch13.addConstraint(Sketcher.Constraint("Vertical", 1))
sketch13.addConstraint(Sketcher.Constraint("Horizontal", 2))
sketch13.addConstraint(Sketcher.Constraint("Horizontal", 4))
sketch13.addConstraint(Sketcher.Constraint("Coincident", 4, 1, 0, 2))
sketch13.addConstraint(Sketcher.Constraint("Equal", 0, 4))
sketch13.addConstraint(Sketcher.Constraint("DistanceX", 2, 2, 2, 1, 9.0))
sketch13.addConstraint(Sketcher.Constraint("Angle", 3, Q("-121 deg")))
sketch13.addConstraint(Sketcher.Constraint("DistanceY", 1, 1, 1, 2, 2.5))
sketch13.addConstraint(Sketcher.Constraint("DistanceX", -1, 1, 0, 2, 57.0))
sketch13.addConstraint(Sketcher.Constraint("DistanceY", 0, 2, -1, 1, 16.0))
sketch13.setExpression("Constraints[10]", "Params.sketch13_width")
sketch13.setExpression("Constraints[12]", "Params.sketch13_height")
groove7 = doc.addObject("PartDesign::Groove", "Groove006")
body.addObject(groove7)
groove7.Profile = sketch13
groove7.ReferenceAxis = (sketch13, ["Axis0"])
groove7.setExpression("Angle", "Params.groove7_angle")
doc.recompute()

datumplane4 = doc.addObject("PartDesign::Plane", "DatumPlane003")
body.addObject(datumplane4)
datumplane4.AttachmentSupport = (doc.YZ_Plane, [""])
datumplane4.MapMode = "FlatFace"
datumplane4.AttachmentOffset = App.Placement(V(0, 0, 60), App.Rotation())
mirrored4 = doc.addObject("PartDesign::Mirrored", "Mirrored003")
body.addObject(mirrored4)
mirrored4.Originals = [groove6]
mirrored4.MirrorPlane = (datumplane4, [""])
body.Tip = mirrored4

sketch14 = doc.addObject("Sketcher::SketchObject", "Sketch013")
body.addObject(sketch14)
sketch14.AttachmentSupport = (doc.YZ_Plane, [""])
sketch14.MapMode = "FlatFace"
sketch14.AttachmentOffset = App.Placement(V(0, 0, 155), App.Rotation())
sketch14.addGeometry(Part.LineSegment(V(57, -16, 0), V(46.5, -16, 0)), False)
sketch14.addGeometry(Part.LineSegment(V(46.5, -16, 0), V(48, -13.5, 0)), False)
sketch14.addGeometry(Part.LineSegment(V(48, -13.5, 0), V(57, -13.5, 0)), False)
sketch14.addGeometry(Part.LineSegment(V(57, -13.5, 0), V(57, -16, 0)), False)
sketch14.addGeometry(Part.LineSegment(V(46.5, -16, 0), V(57, -16, 0)), True)
sketch14.addConstraint(Sketcher.Constraint("Coincident", 0, 2, 1, 1))
sketch14.addConstraint(Sketcher.Constraint("Coincident", 1, 2, 2, 1))
sketch14.addConstraint(Sketcher.Constraint("Coincident", 2, 2, 3, 1))
sketch14.addConstraint(Sketcher.Constraint("Coincident", 3, 2, 0, 1))
sketch14.addConstraint(Sketcher.Constraint("Horizontal", 0))
sketch14.addConstraint(Sketcher.Constraint("Horizontal", 2))
sketch14.addConstraint(Sketcher.Constraint("Vertical", 3))
sketch14.addConstraint(Sketcher.Constraint("Horizontal", 4))
sketch14.addConstraint(Sketcher.Constraint("Coincident", 4, 1, 0, 2))
sketch14.addConstraint(Sketcher.Constraint("Vertical", 2, 2, 4, 2))
sketch14.addConstraint(Sketcher.Constraint("DistanceX", 2, 1, 2, 2, 9.0))
sketch14.addConstraint(Sketcher.Constraint("Angle", 1, Q("59 deg")))
sketch14.addConstraint(Sketcher.Constraint("DistanceY", 3, 2, 3, 1, 2.5))
sketch14.addConstraint(Sketcher.Constraint("DistanceY", 0, 2, -1, 1, 16.0))
sketch14.addConstraint(Sketcher.Constraint("DistanceX", -1, 1, 1, 2, 48.0))
sketch14.setExpression("Constraints[10]", "Params.sketch14_width")
sketch14.setExpression("Constraints[12]", "Params.sketch14_height")
groove8 = doc.addObject("PartDesign::Groove", "Groove007")
body.addObject(groove8)
groove8.Profile = sketch14
groove8.ReferenceAxis = (sketch14, ["Axis0"])
groove8.setExpression("Angle", "Params.groove8_angle")

sketch15 = doc.addObject("Sketcher::SketchObject", "Sketch014")
body.addObject(sketch15)
sketch15.AttachmentSupport = (doc.YZ_Plane, [""])
sketch15.MapMode = "FlatFace"
sketch15.AttachmentOffset = App.Placement(V(0, 0, 90), App.Rotation())
sketch15.addGeometry(Part.LineSegment(V(57, -7, 0), V(46.5, -7, 0)), False)
sketch15.addGeometry(Part.LineSegment(V(46.5, -7, 0), V(48, -4.5, 0)), False)
sketch15.addGeometry(Part.LineSegment(V(48, -4.5, 0), V(57, -4.5, 0)), False)
sketch15.addGeometry(Part.LineSegment(V(57, -4.5, 0), V(57, -7, 0)), False)
sketch15.addGeometry(Part.LineSegment(V(46.5, -7, 0), V(57, -7, 0)), True)
sketch15.addConstraint(Sketcher.Constraint("Coincident", 0, 2, 1, 1))
sketch15.addConstraint(Sketcher.Constraint("Coincident", 1, 2, 2, 1))
sketch15.addConstraint(Sketcher.Constraint("Coincident", 2, 2, 3, 1))
sketch15.addConstraint(Sketcher.Constraint("Coincident", 3, 2, 0, 1))
sketch15.addConstraint(Sketcher.Constraint("Horizontal", 0))
sketch15.addConstraint(Sketcher.Constraint("Horizontal", 2))
sketch15.addConstraint(Sketcher.Constraint("Vertical", 3))
sketch15.addConstraint(Sketcher.Constraint("Horizontal", 4))
sketch15.addConstraint(Sketcher.Constraint("Coincident", 4, 1, 0, 2))
sketch15.addConstraint(Sketcher.Constraint("Vertical", 2, 2, 4, 2))
sketch15.addConstraint(Sketcher.Constraint("DistanceX", 2, 1, 2, 2, 9.0))
sketch15.addConstraint(Sketcher.Constraint("Angle", 1, Q("59 deg")))
sketch15.addConstraint(Sketcher.Constraint("DistanceY", 3, 2, 3, 1, 2.5))
sketch15.addConstraint(Sketcher.Constraint("DistanceY", 0, 2, -1, 1, 7.0))
sketch15.addConstraint(Sketcher.Constraint("DistanceX", -1, 1, 1, 2, 48.0))
sketch15.setExpression("Constraints[10]", "Params.sketch15_width")
sketch15.setExpression("Constraints[12]", "Params.sketch15_height")
groove9 = doc.addObject("PartDesign::Groove", "Groove008")
body.addObject(groove9)
groove9.Profile = sketch15
groove9.ReferenceAxis = (sketch15, ["Axis0"])
groove9.setExpression("Angle", "Params.groove9_angle")

sketch16 = doc.addObject("Sketcher::SketchObject", "Sketch015")
body.addObject(sketch16)
sketch16.AttachmentSupport = (doc.YZ_Plane, [""])
sketch16.MapMode = "FlatFace"
sketch16.AttachmentOffset = App.Placement(V(0, 0, 90), App.Rotation())
sketch16.addGeometry(Part.LineSegment(V(57, -16, 0), V(46.5, -16, 0)), False)
sketch16.addGeometry(Part.LineSegment(V(46.5, -16, 0), V(48, -13.5, 0)), False)
sketch16.addGeometry(Part.LineSegment(V(48, -13.5, 0), V(57, -13.5, 0)), False)
sketch16.addGeometry(Part.LineSegment(V(57, -13.5, 0), V(57, -16, 0)), False)
sketch16.addGeometry(Part.LineSegment(V(46.5, -16, 0), V(57, -16, 0)), True)
sketch16.addConstraint(Sketcher.Constraint("Coincident", 0, 2, 1, 1))
sketch16.addConstraint(Sketcher.Constraint("Coincident", 1, 2, 2, 1))
sketch16.addConstraint(Sketcher.Constraint("Coincident", 2, 2, 3, 1))
sketch16.addConstraint(Sketcher.Constraint("Coincident", 3, 2, 0, 1))
sketch16.addConstraint(Sketcher.Constraint("Horizontal", 0))
sketch16.addConstraint(Sketcher.Constraint("Horizontal", 2))
sketch16.addConstraint(Sketcher.Constraint("Vertical", 3))
sketch16.addConstraint(Sketcher.Constraint("Horizontal", 4))
sketch16.addConstraint(Sketcher.Constraint("Coincident", 4, 1, 0, 2))
sketch16.addConstraint(Sketcher.Constraint("Vertical", 2, 2, 4, 2))
sketch16.addConstraint(Sketcher.Constraint("DistanceX", 2, 1, 2, 2, 9.0))
sketch16.addConstraint(Sketcher.Constraint("Angle", 1, Q("59 deg")))
sketch16.addConstraint(Sketcher.Constraint("DistanceY", 3, 2, 3, 1, 2.5))
sketch16.addConstraint(Sketcher.Constraint("DistanceY", 0, 2, -1, 1, 16.0))
sketch16.addConstraint(Sketcher.Constraint("DistanceX", -1, 1, 1, 2, 48.0))
sketch16.setExpression("Constraints[10]", "Params.sketch16_width")
sketch16.setExpression("Constraints[12]", "Params.sketch16_height")
groove10 = doc.addObject("PartDesign::Groove", "Groove009")
body.addObject(groove10)
groove10.Profile = sketch16
groove10.ReferenceAxis = (sketch16, ["Axis0"])
groove10.setExpression("Angle", "Params.groove10_angle")
doc.recompute()

fillet2 = doc.addObject("PartDesign::Fillet", "Fillet001")
body.addObject(fillet2)
fillet2.Base = (groove10, edges_at(groove10, [(-60, 32.978, 2), (180, 32.978, 2)]))
fillet2.setExpression("Radius", "Params.fillet2_radius")

sketch17 = doc.addObject("Sketcher::SketchObject", "Sketch016")
body.addObject(sketch17)
sketch17.AttachmentSupport = (doc.XY_Plane, [""])
sketch17.MapMode = "FlatFace"
sketch17.addGeometry(Part.LineSegment(V(63.2, 23.6, 0), V(56.8, 23.6, 0)), False)
sketch17.addGeometry(Part.LineSegment(V(56.8, 23.6, 0), V(59.2, 33, 0)), False)
sketch17.addGeometry(Part.LineSegment(V(59.2, 33, 0), V(60.8, 33, 0)), False)
sketch17.addGeometry(Part.LineSegment(V(60.8, 33, 0), V(63.2, 23.6, 0)), False)
sketch17.addConstraint(Sketcher.Constraint("Coincident", 0, 2, 1, 1))
sketch17.addConstraint(Sketcher.Constraint("Coincident", 1, 2, 2, 1))
sketch17.addConstraint(Sketcher.Constraint("Coincident", 2, 2, 3, 1))
sketch17.addConstraint(Sketcher.Constraint("Coincident", 3, 2, 0, 1))
sketch17.addConstraint(Sketcher.Constraint("Horizontal", 0))
sketch17.addConstraint(Sketcher.Constraint("Horizontal", 2))
sketch17.addConstraint(Sketcher.Constraint("Equal", 1, 3))
sketch17.addConstraint(Sketcher.Constraint("DistanceX", 0, 2, 0, 1, 6.434192))
sketch17.addConstraint(Sketcher.Constraint("Distance", 1, 9.69407))
sketch17.addConstraint(Sketcher.Constraint("DistanceX", 2, 1, 2, 2, 1.525853))
sketch17.addConstraint(Sketcher.Constraint("DistanceY", -1, 1, 1, 2, 32.97776))
sketch17.addConstraint(Sketcher.Constraint("DistanceX", -1, 1, 0, 2, 56.782904))
pad4 = doc.addObject("PartDesign::Pad", "Pad003")
body.addObject(pad4)
pad4.Profile = sketch17
pad4.setExpression("Length", "Params.pad4_length")

doc.recompute()
